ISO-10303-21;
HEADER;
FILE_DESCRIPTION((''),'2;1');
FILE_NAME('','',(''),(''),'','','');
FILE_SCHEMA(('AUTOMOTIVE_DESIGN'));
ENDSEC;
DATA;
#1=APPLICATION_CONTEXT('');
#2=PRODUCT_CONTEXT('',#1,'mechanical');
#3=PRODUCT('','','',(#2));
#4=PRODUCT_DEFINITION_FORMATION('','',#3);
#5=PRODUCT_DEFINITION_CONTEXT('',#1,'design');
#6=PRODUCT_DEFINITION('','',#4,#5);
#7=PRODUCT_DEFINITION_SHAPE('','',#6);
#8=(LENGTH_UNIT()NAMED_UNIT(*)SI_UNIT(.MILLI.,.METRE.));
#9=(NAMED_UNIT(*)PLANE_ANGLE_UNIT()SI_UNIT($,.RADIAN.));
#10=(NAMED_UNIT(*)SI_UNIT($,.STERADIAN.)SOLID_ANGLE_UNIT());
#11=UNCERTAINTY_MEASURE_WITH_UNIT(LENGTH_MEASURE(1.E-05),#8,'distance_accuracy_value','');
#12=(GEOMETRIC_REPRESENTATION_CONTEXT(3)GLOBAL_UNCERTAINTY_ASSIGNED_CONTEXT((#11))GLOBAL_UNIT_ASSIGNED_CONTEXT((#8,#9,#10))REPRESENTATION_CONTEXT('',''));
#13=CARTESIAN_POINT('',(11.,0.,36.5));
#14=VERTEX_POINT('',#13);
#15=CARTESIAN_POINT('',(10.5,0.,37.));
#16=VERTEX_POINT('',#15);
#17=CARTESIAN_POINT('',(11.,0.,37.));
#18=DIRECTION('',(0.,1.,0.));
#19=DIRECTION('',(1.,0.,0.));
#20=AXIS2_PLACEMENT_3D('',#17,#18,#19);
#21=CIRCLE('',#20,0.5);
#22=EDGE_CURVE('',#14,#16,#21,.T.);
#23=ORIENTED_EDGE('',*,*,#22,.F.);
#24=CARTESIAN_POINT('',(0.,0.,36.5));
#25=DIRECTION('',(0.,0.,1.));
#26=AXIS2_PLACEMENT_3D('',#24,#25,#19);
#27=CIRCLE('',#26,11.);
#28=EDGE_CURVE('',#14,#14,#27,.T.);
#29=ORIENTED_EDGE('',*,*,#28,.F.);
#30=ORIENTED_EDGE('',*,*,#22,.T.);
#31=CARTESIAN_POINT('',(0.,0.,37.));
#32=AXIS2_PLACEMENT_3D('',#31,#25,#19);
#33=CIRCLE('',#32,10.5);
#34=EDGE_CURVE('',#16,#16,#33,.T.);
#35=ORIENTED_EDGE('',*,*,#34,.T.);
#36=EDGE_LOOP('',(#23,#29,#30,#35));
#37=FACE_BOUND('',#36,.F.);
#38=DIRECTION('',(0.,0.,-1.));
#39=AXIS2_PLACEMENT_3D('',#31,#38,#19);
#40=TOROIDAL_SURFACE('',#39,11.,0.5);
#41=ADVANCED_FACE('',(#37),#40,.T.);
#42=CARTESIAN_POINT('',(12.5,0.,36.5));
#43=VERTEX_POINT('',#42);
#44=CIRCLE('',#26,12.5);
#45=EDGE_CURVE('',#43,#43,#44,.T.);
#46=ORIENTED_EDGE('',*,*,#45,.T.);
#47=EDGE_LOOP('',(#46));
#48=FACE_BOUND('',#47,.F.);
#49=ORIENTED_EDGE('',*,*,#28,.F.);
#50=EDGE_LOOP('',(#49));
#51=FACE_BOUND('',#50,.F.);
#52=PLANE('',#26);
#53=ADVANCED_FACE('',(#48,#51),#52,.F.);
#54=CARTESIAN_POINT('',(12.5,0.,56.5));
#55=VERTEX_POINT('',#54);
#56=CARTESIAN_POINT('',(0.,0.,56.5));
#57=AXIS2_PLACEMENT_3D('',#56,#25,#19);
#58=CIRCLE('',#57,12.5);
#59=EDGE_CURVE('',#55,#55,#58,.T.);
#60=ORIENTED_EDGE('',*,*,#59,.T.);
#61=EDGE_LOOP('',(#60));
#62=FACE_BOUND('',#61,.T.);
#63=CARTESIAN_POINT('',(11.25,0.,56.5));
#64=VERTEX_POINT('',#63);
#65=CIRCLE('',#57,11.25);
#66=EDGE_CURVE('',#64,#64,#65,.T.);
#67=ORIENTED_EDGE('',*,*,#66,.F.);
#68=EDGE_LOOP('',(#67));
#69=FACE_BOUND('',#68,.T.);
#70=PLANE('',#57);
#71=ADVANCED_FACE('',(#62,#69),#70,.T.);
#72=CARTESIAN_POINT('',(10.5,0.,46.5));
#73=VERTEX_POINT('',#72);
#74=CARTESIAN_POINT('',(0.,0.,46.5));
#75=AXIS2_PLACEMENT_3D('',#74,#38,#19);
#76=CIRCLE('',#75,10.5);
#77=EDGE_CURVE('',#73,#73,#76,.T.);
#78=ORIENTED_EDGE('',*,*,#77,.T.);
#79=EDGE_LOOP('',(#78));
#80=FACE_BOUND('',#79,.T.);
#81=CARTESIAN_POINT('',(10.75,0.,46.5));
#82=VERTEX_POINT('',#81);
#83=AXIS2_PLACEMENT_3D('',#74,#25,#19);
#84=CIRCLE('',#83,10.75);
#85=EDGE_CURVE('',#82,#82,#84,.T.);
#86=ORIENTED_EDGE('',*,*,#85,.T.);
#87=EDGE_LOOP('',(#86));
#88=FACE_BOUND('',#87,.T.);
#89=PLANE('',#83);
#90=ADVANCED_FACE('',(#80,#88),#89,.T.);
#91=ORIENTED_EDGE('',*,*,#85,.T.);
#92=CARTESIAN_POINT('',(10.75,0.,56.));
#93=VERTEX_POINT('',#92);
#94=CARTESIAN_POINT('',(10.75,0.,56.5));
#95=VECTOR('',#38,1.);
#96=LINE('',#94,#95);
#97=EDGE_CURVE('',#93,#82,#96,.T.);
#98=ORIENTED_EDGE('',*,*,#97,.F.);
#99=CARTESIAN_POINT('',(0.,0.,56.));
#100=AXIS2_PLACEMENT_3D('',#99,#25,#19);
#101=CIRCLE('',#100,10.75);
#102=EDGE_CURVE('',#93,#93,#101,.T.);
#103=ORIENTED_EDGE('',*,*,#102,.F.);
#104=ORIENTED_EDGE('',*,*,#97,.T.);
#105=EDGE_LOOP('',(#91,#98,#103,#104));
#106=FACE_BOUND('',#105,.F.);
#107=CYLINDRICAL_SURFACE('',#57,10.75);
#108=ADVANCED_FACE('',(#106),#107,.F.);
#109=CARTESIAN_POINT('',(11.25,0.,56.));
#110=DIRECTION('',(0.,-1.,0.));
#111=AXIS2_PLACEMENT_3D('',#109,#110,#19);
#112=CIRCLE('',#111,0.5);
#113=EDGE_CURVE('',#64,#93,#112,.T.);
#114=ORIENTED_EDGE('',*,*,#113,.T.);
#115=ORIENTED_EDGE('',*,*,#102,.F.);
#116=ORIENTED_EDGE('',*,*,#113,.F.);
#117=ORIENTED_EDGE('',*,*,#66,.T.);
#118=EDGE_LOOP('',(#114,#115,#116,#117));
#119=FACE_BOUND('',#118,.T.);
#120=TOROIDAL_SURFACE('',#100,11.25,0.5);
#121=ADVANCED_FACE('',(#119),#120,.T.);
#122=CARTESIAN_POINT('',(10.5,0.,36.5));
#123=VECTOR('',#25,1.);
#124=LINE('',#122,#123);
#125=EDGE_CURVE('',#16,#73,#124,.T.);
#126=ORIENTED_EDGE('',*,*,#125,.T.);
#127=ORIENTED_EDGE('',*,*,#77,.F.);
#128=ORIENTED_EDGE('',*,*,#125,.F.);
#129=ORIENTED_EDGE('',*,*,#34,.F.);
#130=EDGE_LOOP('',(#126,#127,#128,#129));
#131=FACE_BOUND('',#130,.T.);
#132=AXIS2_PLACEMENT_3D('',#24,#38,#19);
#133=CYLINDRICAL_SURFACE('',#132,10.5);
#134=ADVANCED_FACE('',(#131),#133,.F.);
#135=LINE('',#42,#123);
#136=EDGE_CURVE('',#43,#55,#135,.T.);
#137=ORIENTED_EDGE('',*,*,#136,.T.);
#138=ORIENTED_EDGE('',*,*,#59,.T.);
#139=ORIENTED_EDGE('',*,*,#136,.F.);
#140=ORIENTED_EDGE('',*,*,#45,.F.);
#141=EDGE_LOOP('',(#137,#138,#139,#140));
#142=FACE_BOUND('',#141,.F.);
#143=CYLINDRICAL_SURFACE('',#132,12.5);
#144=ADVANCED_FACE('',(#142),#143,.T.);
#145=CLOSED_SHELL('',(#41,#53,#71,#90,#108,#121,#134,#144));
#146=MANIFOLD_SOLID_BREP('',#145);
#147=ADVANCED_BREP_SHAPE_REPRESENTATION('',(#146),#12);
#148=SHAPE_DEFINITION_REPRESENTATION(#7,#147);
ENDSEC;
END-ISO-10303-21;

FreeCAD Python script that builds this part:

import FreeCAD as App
import Part
import Sketcher
Q = App.Units.Quantity


def edges_at(feature, points):
    """Names of the edges that pass closest to the given points."""
    edges = feature.Shape.Edges
    near = lambda p: min(range(len(edges)), key=lambda i: edges[i].distToShape(Part.Vertex(*p))[0])
    return sorted({f"Edge{near(p) + 1}" for p in points})

doc = App.newDocument("Part")
body = doc.addObject("PartDesign::Body", "Body")

sketch1 = body.newObject("Sketcher::SketchObject", "Sketch")
sketch1.AttachmentSupport = (doc.getObject("XY_Plane"), [""])
sketch1.MapMode = "FlatFace"
sketch1.AttachmentOffset = App.Placement(App.Vector(0, 0, 36.5), App.Rotation())
sketch1.addGeometry([
    Part.Circle(App.Vector(0, 0, 0), App.Vector(0, 0, 1), 12.5),
    Part.Circle(App.Vector(0, 0, 0), App.Vector(0, 0, 1), 10.5),
], False)
sketch1.addConstraint([
    Sketcher.Constraint("Coincident", 0, 3, -1, 1),
    Sketcher.Constraint("Coincident", 1, 3, -1, 1),
    Sketcher.Constraint("Diameter", 0, Q("25 mm")),
    Sketcher.Constraint("Diameter", 1, Q("21 mm")),
])
pad1 = body.newObject("PartDesign::Pad", "Pad")
pad1.Profile = sketch1
pad1.Length = 20

sketch2 = body.newObject("Sketcher::SketchObject", "Sketch001")
sketch2.AttachmentSupport = (doc.getObject("XY_Plane"), [""])
sketch2.MapMode = "FlatFace"
sketch2.AttachmentOffset = App.Placement(App.Vector(0, 0, 56.5), App.Rotation())
sketch2.addGeometry(Part.Circle(App.Vector(0, 0, 0), App.Vector(0, 0, 1), 10.75), False)
sketch2.addConstraint([
    Sketcher.Constraint("Coincident", 0, 3, -1, 1),
    Sketcher.Constraint("Diameter", 0, Q("21.5 mm")),
])
pocket1 = body.newObject("PartDesign::Pocket", "Pocket")
pocket1.Profile = sketch2
pocket1.Length = 10
doc.recompute()

fillet = body.newObject("PartDesign::Fillet", "Fillet")
fillet.Base = (pocket1, edges_at(pocket1, [(-10.75, 0, 56.5), (-10.5, 0, 36.5)]))
fillet.Radius = 0.5

doc.recompute()
